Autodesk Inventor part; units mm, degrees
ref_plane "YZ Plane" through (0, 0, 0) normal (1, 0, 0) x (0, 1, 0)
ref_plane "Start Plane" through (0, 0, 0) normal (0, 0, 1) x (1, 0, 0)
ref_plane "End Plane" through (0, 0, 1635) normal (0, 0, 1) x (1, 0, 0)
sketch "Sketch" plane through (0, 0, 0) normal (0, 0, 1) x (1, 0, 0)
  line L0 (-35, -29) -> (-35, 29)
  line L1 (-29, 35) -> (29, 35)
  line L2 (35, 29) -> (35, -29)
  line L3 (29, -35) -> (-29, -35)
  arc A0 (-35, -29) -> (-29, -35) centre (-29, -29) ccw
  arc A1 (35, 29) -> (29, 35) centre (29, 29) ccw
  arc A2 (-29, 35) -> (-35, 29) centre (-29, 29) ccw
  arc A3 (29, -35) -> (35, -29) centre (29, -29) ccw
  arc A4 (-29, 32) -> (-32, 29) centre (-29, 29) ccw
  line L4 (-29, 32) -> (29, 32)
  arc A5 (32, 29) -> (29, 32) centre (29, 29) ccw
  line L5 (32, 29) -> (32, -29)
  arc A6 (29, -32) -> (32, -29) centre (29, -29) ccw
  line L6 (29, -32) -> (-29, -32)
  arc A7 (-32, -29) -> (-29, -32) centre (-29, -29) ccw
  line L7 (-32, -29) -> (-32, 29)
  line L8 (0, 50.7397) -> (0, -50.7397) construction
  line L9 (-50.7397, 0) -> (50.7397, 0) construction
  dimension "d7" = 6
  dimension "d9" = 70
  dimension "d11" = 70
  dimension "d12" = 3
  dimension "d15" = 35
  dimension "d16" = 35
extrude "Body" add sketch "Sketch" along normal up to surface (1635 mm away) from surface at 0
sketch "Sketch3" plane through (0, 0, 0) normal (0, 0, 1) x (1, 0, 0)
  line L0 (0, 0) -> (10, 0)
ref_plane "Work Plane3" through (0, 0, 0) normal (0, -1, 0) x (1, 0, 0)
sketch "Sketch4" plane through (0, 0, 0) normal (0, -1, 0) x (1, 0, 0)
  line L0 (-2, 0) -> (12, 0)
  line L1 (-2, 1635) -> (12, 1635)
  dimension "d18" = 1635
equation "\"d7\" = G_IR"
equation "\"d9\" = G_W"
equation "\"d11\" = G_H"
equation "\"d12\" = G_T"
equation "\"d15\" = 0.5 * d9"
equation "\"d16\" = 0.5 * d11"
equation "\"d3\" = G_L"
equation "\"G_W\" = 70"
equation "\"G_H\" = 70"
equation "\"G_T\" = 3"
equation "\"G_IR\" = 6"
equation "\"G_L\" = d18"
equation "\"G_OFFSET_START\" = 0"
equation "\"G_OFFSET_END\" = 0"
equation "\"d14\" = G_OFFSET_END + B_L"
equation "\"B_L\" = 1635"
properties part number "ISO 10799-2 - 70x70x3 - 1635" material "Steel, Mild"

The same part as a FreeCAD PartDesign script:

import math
import FreeCAD as App
import Part
import Sketcher

doc = App.newDocument("Part")
body = doc.addObject("PartDesign::Body", "Body")

sketch1 = doc.addObject("Sketcher::SketchObject", "Sketch")
body.addObject(sketch1)
sketch1.AttachmentSupport = (doc.XY_Plane, [""])
sketch1.MapMode = "FlatFace"
sketch1.addGeometry([
    Part.LineSegment(App.Vector(-35, 29, 0), App.Vector(-35, -29, 0)),
    Part.ArcOfCircle(Part.Circle(App.Vector(-29, -29, 0), App.Vector(0, 0, 1), 6), math.radians(180), math.radians(270)),
    Part.LineSegment(App.Vector(-29, -35, 0), App.Vector(29, -35, 0)),
    Part.ArcOfCircle(Part.Circle(App.Vector(29, -29, 0), App.Vector(0, 0, 1), 6), math.radians(-90), math.radians(0)),
    Part.LineSegment(App.Vector(35, -29, 0), App.Vector(35, 29, 0)),
    Part.ArcOfCircle(Part.Circle(App.Vector(29, 29, 0), App.Vector(0, 0, 1), 6), math.radians(0), math.radians(90)),
    Part.LineSegment(App.Vector(29, 35, 0), App.Vector(-29, 35, 0)),
    Part.ArcOfCircle(Part.Circle(App.Vector(-29, 29, 0), App.Vector(0, 0, 1), 6), math.radians(90), math.radians(180)),
    Part.ArcOfCircle(Part.Circle(App.Vector(-29, 29, 0), App.Vector(0, 0, 1), 3), math.radians(90), math.radians(180)),
    Part.LineSegment(App.Vector(-29, 32, 0), App.Vector(29, 32, 0)),
    Part.ArcOfCircle(Part.Circle(App.Vector(29, 29, 0), App.Vector(0, 0, 1), 3), math.radians(0), math.radians(90)),
    Part.LineSegment(App.Vector(32, 29, 0), App.Vector(32, -29, 0)),
    Part.ArcOfCircle(Part.Circle(App.Vector(29, -29, 0), App.Vector(0, 0, 1), 3), math.radians(-90), math.radians(0)),
    Part.LineSegment(App.Vector(29, -32, 0), App.Vector(-29, -32, 0)),
    Part.ArcOfCircle(Part.Circle(App.Vector(-29, -29, 0), App.Vector(0, 0, 1), 3), math.radians(180), math.radians(270)),
    Part.LineSegment(App.Vector(-32, -29, 0), App.Vector(-32, 29, 0)),
], False)
sketch1.addConstraint([
    Sketcher.Constraint("Tangent", 0, 2, 1, 1),
    Sketcher.Constraint("Tangent", 1, 2, 2, 1),
    Sketcher.Constraint("Tangent", 2, 2, 3, 1),
    Sketcher.Constraint("Tangent", 3, 2, 4, 1),
    Sketcher.Constraint("Tangent", 4, 2, 5, 1),
    Sketcher.Constraint("Tangent", 5, 2, 6, 1),
    Sketcher.Constraint("Tangent", 6, 2, 7, 1),
    Sketcher.Constraint("Tangent", 7, 2, 0, 1),
    Sketcher.Constraint("Tangent", 8, 1, 9, 1),
    Sketcher.Constraint("Tangent", 9, 2, 10, 2),
    Sketcher.Constraint("Tangent", 10, 1, 11, 1),
    Sketcher.Constraint("Tangent", 11, 2, 12, 2),
    Sketcher.Constraint("Tangent", 12, 1, 13, 1),
    Sketcher.Constraint("Tangent", 13, 2, 14, 2),
    Sketcher.Constraint("Tangent", 14, 1, 15, 1),
    Sketcher.Constraint("Tangent", 15, 2, 8, 2),
    Sketcher.Constraint("Vertical", 0),
    Sketcher.Constraint("Horizontal", 2),
    Sketcher.Constraint("Vertical", 4),
    Sketcher.Constraint("Horizontal", 6),
    Sketcher.Constraint("Horizontal", 9),
    Sketcher.Constraint("Vertical", 11),
    Sketcher.Constraint("Horizontal", 13),
    Sketcher.Constraint("Vertical", 15),
    Sketcher.Constraint("Coincident", 8, 3, 7, 3),
    Sketcher.Constraint("Coincident", 10, 3, 5, 3),
    Sketcher.Constraint("Coincident", 12, 3, 3, 3),
    Sketcher.Constraint("Equal", 1, 3),
    Sketcher.Constraint("Equal", 3, 5),
    Sketcher.Constraint("Equal", 5, 7),
    Sketcher.Constraint("Equal", 12, 14),
    Sketcher.Constraint("Symmetric", 1, 3, 5, 3, -1, 1),
    Sketcher.Constraint("Equal", 13, 0),
    Sketcher.Constraint("Radius", 1, 6.0),
    Sketcher.Constraint("Radius", 8, 3.0),
    Sketcher.Constraint("DistanceX", 0, 2, -1, 1, 35.0),
])
pad1 = doc.addObject("PartDesign::Pad", "Pad")
body.addObject(pad1)
pad1.Profile = sketch1
pad1.Length = 1635

doc.recompute()
